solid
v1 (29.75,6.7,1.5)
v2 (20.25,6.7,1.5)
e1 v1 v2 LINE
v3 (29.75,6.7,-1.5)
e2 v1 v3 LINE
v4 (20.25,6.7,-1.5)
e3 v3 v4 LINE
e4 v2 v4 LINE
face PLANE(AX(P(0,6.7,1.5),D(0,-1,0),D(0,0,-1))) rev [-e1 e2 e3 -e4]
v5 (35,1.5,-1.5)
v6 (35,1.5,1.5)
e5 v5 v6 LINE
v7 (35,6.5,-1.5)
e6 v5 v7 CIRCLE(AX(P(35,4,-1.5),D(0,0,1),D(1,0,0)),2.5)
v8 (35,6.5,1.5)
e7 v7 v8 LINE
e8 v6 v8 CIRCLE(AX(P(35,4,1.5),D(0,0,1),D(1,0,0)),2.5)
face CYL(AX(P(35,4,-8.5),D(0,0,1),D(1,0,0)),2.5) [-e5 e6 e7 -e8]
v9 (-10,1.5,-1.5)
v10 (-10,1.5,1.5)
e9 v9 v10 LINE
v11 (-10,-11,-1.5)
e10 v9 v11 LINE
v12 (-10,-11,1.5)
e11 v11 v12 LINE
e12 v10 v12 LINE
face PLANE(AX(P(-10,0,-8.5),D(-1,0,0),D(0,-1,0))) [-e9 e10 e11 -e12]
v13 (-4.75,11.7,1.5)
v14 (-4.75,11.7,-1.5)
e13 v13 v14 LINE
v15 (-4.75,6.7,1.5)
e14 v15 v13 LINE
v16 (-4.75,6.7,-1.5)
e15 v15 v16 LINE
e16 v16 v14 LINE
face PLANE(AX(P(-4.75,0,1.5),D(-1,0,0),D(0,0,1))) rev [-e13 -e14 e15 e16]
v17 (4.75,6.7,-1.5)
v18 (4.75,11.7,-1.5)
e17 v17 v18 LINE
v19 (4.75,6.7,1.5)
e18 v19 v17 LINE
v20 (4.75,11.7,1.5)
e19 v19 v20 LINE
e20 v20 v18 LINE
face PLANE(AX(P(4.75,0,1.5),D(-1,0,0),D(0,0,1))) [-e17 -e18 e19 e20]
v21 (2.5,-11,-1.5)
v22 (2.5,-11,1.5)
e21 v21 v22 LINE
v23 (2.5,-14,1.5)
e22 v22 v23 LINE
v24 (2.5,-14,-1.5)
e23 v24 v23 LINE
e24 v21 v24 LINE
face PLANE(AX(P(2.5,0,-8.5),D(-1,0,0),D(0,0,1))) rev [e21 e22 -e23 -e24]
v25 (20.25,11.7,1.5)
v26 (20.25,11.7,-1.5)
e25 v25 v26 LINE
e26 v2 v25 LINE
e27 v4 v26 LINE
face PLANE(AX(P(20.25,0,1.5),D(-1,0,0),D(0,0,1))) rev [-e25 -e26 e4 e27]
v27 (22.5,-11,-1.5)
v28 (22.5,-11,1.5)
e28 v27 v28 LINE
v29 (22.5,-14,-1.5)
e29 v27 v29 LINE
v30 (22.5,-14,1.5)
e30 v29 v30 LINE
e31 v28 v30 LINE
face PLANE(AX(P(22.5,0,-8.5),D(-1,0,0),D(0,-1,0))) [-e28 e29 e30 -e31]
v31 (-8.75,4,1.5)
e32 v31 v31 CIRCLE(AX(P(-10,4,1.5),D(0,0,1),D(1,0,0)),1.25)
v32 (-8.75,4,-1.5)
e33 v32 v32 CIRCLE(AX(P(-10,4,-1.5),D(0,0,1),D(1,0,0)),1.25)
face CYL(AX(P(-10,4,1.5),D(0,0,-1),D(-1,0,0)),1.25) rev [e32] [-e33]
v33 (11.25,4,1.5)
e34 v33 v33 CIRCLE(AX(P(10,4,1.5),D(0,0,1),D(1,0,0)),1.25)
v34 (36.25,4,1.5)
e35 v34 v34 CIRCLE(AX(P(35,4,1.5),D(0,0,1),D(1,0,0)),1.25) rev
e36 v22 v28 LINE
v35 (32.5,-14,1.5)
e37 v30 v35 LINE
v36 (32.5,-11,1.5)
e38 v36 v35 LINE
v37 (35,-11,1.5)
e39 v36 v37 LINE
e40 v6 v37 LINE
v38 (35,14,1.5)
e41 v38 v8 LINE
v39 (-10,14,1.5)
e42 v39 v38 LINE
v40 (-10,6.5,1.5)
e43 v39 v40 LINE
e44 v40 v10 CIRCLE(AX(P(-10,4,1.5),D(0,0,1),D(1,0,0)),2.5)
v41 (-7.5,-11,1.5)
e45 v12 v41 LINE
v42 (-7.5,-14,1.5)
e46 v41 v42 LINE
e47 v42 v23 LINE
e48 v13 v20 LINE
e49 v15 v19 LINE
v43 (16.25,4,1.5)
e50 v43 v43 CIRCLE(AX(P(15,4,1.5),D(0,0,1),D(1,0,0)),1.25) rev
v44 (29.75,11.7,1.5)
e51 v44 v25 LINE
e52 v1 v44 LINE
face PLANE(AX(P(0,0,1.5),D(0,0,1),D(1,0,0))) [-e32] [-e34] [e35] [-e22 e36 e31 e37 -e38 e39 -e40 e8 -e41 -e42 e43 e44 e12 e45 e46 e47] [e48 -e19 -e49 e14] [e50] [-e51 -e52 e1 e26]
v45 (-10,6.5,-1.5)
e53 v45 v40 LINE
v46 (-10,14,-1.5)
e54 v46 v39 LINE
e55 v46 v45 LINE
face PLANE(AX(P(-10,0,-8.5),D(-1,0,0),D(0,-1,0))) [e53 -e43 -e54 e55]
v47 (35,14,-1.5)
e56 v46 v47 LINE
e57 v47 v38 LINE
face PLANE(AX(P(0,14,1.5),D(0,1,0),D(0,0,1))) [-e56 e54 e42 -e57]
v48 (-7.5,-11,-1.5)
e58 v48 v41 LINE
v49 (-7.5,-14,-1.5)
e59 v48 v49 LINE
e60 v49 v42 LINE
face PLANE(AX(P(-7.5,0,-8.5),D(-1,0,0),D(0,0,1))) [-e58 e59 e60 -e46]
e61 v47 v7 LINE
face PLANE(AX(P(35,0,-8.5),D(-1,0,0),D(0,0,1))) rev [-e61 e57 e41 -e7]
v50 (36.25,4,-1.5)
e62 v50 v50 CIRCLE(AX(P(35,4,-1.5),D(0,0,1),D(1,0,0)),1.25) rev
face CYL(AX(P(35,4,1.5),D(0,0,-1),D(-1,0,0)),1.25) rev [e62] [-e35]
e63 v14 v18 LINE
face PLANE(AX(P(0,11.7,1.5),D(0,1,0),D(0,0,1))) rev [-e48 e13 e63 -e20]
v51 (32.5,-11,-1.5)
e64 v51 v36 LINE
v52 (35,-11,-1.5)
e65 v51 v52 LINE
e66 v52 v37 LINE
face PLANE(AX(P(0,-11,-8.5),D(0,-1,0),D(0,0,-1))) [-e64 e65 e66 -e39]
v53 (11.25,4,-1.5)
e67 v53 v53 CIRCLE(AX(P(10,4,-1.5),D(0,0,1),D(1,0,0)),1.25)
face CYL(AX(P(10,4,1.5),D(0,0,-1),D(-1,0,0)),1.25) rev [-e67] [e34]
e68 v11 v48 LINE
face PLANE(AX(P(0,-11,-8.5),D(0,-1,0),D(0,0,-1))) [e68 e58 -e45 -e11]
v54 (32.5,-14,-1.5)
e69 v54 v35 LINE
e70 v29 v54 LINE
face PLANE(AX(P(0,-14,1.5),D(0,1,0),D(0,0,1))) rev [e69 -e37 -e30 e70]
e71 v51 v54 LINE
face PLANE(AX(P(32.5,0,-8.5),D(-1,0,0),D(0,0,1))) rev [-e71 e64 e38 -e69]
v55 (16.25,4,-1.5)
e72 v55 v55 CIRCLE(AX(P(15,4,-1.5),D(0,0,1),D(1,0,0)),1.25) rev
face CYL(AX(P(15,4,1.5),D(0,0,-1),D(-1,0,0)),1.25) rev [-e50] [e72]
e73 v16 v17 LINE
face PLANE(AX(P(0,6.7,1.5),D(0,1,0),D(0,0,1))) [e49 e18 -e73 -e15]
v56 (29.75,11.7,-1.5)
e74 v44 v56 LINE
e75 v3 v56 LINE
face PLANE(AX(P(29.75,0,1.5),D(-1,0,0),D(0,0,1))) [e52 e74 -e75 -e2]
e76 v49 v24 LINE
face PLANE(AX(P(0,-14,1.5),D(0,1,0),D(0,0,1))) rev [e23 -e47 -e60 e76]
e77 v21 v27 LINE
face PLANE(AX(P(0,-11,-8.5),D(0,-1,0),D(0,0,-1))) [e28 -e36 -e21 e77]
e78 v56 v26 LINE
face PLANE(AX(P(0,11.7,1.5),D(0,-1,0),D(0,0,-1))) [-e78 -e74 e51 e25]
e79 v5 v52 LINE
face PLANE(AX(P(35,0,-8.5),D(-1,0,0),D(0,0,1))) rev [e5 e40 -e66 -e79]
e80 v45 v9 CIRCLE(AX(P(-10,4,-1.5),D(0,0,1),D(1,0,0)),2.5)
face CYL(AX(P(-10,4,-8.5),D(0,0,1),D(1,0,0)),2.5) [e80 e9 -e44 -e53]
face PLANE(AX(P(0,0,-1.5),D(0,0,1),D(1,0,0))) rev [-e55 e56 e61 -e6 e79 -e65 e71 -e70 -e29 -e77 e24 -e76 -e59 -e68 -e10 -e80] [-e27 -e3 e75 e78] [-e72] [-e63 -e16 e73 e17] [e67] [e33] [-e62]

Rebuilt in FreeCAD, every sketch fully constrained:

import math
import FreeCAD as App
import Part
import Sketcher

doc = App.newDocument("Part")
body = doc.addObject("PartDesign::Body", "Body")

# Sketch on XY plane
sketch1 = doc.addObject("Sketcher::SketchObject", "Sketch")
body.addObject(sketch1)
sketch1.AttachmentSupport = (doc.XY_Plane, [""])
sketch1.MapMode = "FlatFace"
sketch1.addGeometry([
    Part.LineSegment(App.Vector(-12.5, 14, 0), App.Vector(-12.5, -14, 0)),  # 0
    Part.LineSegment(App.Vector(-12.5, -14, 0), App.Vector(37.5, -14, 0)),  # 1
    Part.LineSegment(App.Vector(37.5, -14, 0), App.Vector(37.5, 14, 0)),  # 2
    Part.LineSegment(App.Vector(37.5, 14, 0), App.Vector(-12.5, 14, 0)),  # 3
    Part.Circle(App.Vector(-10, 4, 0), App.Vector(0, 0, 1), 1.25),  # 4
    Part.Circle(App.Vector(10, 4, 0), App.Vector(0, 0, 1), 1.25),  # 5
    Part.LineSegment(App.Vector(4.75, 6.7, 0), App.Vector(-4.75, 6.7, 0)),  # 6
    Part.LineSegment(App.Vector(-4.75, 6.7, 0), App.Vector(-4.75, 11.7, 0)),  # 7
    Part.LineSegment(App.Vector(-4.75, 11.7, 0), App.Vector(4.75, 11.7, 0)),  # 8
    Part.LineSegment(App.Vector(4.75, 11.7, 0), App.Vector(4.75, 6.7, 0)),  # 9
    Part.LineSegment(App.Vector(20.25, 6.7, 0), App.Vector(20.25, 11.7, 0)),  # 10
    Part.LineSegment(App.Vector(20.25, 11.7, 0), App.Vector(29.75, 11.7, 0)),  # 11
    Part.LineSegment(App.Vector(29.75, 11.7, 0), App.Vector(29.75, 6.7, 0)),  # 12
    Part.LineSegment(App.Vector(29.75, 6.7, 0), App.Vector(20.25, 6.7, 0)),  # 13
    Part.Circle(App.Vector(15, 4, 0), App.Vector(0, 0, 1), 1.25),  # 14
    Part.Circle(App.Vector(35, 4, 0), App.Vector(0, 0, 1), 1.25),  # 15
], False)
sketch1.addConstraint([
    Sketcher.Constraint("Coincident", 0, 2, 1, 1),
    Sketcher.Constraint("Coincident", 1, 2, 2, 1),
    Sketcher.Constraint("Coincident", 2, 2, 3, 1),
    Sketcher.Constraint("Coincident", 3, 2, 0, 1),
    Sketcher.Constraint("Coincident", 6, 2, 7, 1),
    Sketcher.Constraint("Coincident", 7, 2, 8, 1),
    Sketcher.Constraint("Coincident", 8, 2, 9, 1),
    Sketcher.Constraint("Coincident", 9, 2, 6, 1),
    Sketcher.Constraint("Coincident", 10, 2, 11, 1),
    Sketcher.Constraint("Coincident", 11, 2, 12, 1),
    Sketcher.Constraint("Coincident", 12, 2, 13, 1),
    Sketcher.Constraint("Coincident", 13, 2, 10, 1),
    Sketcher.Constraint("Vertical", 0),
    Sketcher.Constraint("Horizontal", 1),
    Sketcher.Constraint("Vertical", 2),
    Sketcher.Constraint("Horizontal", 3),
    Sketcher.Constraint("Horizontal", 6),
    Sketcher.Constraint("Vertical", 7),
    Sketcher.Constraint("Horizontal", 8),
    Sketcher.Constraint("Vertical", 9),
    Sketcher.Constraint("Vertical", 10),
    Sketcher.Constraint("Horizontal", 11),
    Sketcher.Constraint("Vertical", 12),
    Sketcher.Constraint("Horizontal", 13),
    Sketcher.Constraint("Equal", 4, 5),
    Sketcher.Constraint("Equal", 5, 14),
    Sketcher.Constraint("Equal", 14, 15),
    Sketcher.Constraint("Symmetric", 4, 3, 5, 3, -2),
    Sketcher.Constraint("Horizontal", 5, 3, 14, 3),
    Sketcher.Constraint("Horizontal", 14, 3, 15, 3),
    Sketcher.Constraint("Horizontal", 8, 2, 10, 2),
    Sketcher.Constraint("Horizontal", 9, 2, 12, 2),
    Sketcher.Constraint("Equal", 8, 11),
    Sketcher.Constraint("Diameter", 4, 2.5),
    Sketcher.Constraint("DistanceX", 1, 1, 1, 2, 50.0),
    Sketcher.Constraint("DistanceY", 0, 2, 0, 1, 28.0),
    Sketcher.Constraint("DistanceY", 7, 1, 7, 2, 5.0),
    Sketcher.Constraint("DistanceX", 6, 2, 6, 1, 9.5),
    Sketcher.Constraint("DistanceX", 4, 3, -1, 1, 10.0),
    Sketcher.Constraint("DistanceY", -1, 1, 4, 3, 4.0),
    Sketcher.Constraint("DistanceX", -1, 1, 14, 3, 15.0),
    Sketcher.Constraint("DistanceX", -1, 1, 15, 3, 35.0),
    Sketcher.Constraint("DistanceY", 0, 2, -1, 1, 14.0),
    Sketcher.Constraint("DistanceX", 0, 2, -1, 1, 12.5),
    Sketcher.Constraint("DistanceY", -1, 1, 6, 2, 6.7),
    Sketcher.Constraint("DistanceX", 8, 2, 10, 2, 15.5),
    Sketcher.Constraint("DistanceX", 6, 2, -1, 1, 4.75),
])
pad1 = doc.addObject("PartDesign::Pad", "Pad")
body.addObject(pad1)
pad1.Profile = sketch1
pad1.Length = 3
pad1.Midplane = True

# Sketch on XY plane
sketch2 = doc.addObject("Sketcher::SketchObject", "Sketch001")
body.addObject(sketch2)
sketch2.AttachmentSupport = (doc.XY_Plane, [""])
sketch2.MapMode = "FlatFace"
sketch2.AttachmentOffset = App.Placement(App.Vector(0, 0, 1.5), App.Rotation())
sketch2.addGeometry([
    Part.LineSegment(App.Vector(-10, 6.5, 0), App.Vector(-10, 14, 0)),  # 0
    Part.LineSegment(App.Vector(-10, 14, 0), App.Vector(-12.5, 14, 0)),  # 1
    Part.LineSegment(App.Vector(-12.5, 14, 0), App.Vector(-12.5, 4, 0)),  # 2
    Part.ArcOfCircle(Part.Circle(App.Vector(-10, 4, 0), App.Vector(0, 0, 1), 2.5), math.radians(90), math.radians(180)),  # 3
    Part.LineSegment(App.Vector(-10, -11, 0), App.Vector(-10, 1.5, 0)),  # 4
    Part.ArcOfCircle(Part.Circle(App.Vector(-10, 4, 0), App.Vector(0, 0, 1), 2.5), math.radians(180), math.radians(270)),  # 5
    Part.LineSegment(App.Vector(-12.5, 4, 0), App.Vector(-12.5, -14, 0)),  # 6
    Part.LineSegment(App.Vector(-12.5, -14, 0), App.Vector(-7.5, -14, 0)),  # 7
    Part.LineSegment(App.Vector(-7.5, -14, 0), App.Vector(-7.5, -11, 0)),  # 8
    Part.LineSegment(App.Vector(-7.5, -11, 0), App.Vector(-10, -11, 0)),  # 9
    Part.LineSegment(App.Vector(2.5, -11, 0), App.Vector(2.5, -14, 0)),  # 10
    Part.LineSegment(App.Vector(2.5, -14, 0), App.Vector(22.5, -14, 0)),  # 11
    Part.LineSegment(App.Vector(22.5, -14, 0), App.Vector(22.5, -11, 0)),  # 12
    Part.LineSegment(App.Vector(22.5, -11, 0), App.Vector(2.5, -11, 0)),  # 13
    Part.LineSegment(App.Vector(37.5, -14, 0), App.Vector(37.5, 4, 0)),  # 14
    Part.ArcOfCircle(Part.Circle(App.Vector(35, 4, 0), App.Vector(0, 0, 1), 2.5), math.radians(-90), math.radians(0)),  # 15
    Part.LineSegment(App.Vector(35, 1.5, 0), App.Vector(35, -11, 0)),  # 16
    Part.LineSegment(App.Vector(35, -11, 0), App.Vector(32.5, -11, 0)),  # 17
    Part.LineSegment(App.Vector(32.5, -11, 0), App.Vector(32.5, -14, 0)),  # 18
    Part.LineSegment(App.Vector(32.5, -14, 0), App.Vector(37.5, -14, 0)),  # 19
    Part.LineSegment(App.Vector(37.5, 14, 0), App.Vector(35, 14, 0)),  # 20
    Part.LineSegment(App.Vector(35, 14, 0), App.Vector(35, 6.5, 0)),  # 21
    Part.ArcOfCircle(Part.Circle(App.Vector(35, 4, 0), App.Vector(0, 0, 1), 2.5), math.radians(0), math.radians(90)),  # 22
    Part.LineSegment(App.Vector(37.5, 4, 0), App.Vector(37.5, 14, 0)),  # 23
], False)
sketch2.addConstraint([
    Sketcher.Constraint("Coincident", 0, 2, 1, 1),
    Sketcher.Constraint("Coincident", 1, 2, 2, 1),
    Sketcher.Constraint("Tangent", 2, 2, 3, 2),
    Sketcher.Constraint("Coincident", 3, 1, 0, 1),
    Sketcher.Constraint("Coincident", 4, 2, 5, 2),
    Sketcher.Constraint("Tangent", 5, 1, 6, 1),
    Sketcher.Constraint("Coincident", 6, 2, 7, 1),
    Sketcher.Constraint("Coincident", 7, 2, 8, 1),
    Sketcher.Constraint("Coincident", 8, 2, 9, 1),
    Sketcher.Constraint("Coincident", 9, 2, 4, 1),
    Sketcher.Constraint("Coincident", 10, 2, 11, 1),
    Sketcher.Constraint("Coincident", 11, 2, 12, 1),
    Sketcher.Constraint("Coincident", 12, 2, 13, 1),
    Sketcher.Constraint("Coincident", 13, 2, 10, 1),
    Sketcher.Constraint("Tangent", 14, 2, 15, 2),
    Sketcher.Constraint("Coincident", 15, 1, 16, 1),
    Sketcher.Constraint("Coincident", 16, 2, 17, 1),
    Sketcher.Constraint("Coincident", 17, 2, 18, 1),
    Sketcher.Constraint("Coincident", 18, 2, 19, 1),
    Sketcher.Constraint("Coincident", 19, 2, 14, 1),
    Sketcher.Constraint("Coincident", 20, 2, 21, 1),
    Sketcher.Constraint("Coincident", 21, 2, 22, 2),
    Sketcher.Constraint("Tangent", 22, 1, 23, 1),
    Sketcher.Constraint("Coincident", 23, 2, 20, 1),
    Sketcher.Constraint("Vertical", 0),
    Sketcher.Constraint("Horizontal", 1),
    Sketcher.Constraint("Vertical", 2),
    Sketcher.Constraint("Vertical", 4),
    Sketcher.Constraint("Vertical", 6),
    Sketcher.Constraint("Horizontal", 7),
    Sketcher.Constraint("Vertical", 8),
    Sketcher.Constraint("Horizontal", 9),
    Sketcher.Constraint("Vertical", 10),
    Sketcher.Constraint("Horizontal", 11),
    Sketcher.Constraint("Vertical", 12),
    Sketcher.Constraint("Horizontal", 13),
    Sketcher.Constraint("Vertical", 14),
    Sketcher.Constraint("Vertical", 16),
    Sketcher.Constraint("Horizontal", 17),
    Sketcher.Constraint("Vertical", 18),
    Sketcher.Constraint("Horizontal", 19),
    Sketcher.Constraint("Horizontal", 20),
    Sketcher.Constraint("Vertical", 21),
    Sketcher.Constraint("Vertical", 23),
    Sketcher.Constraint("Coincident", 5, 3, 3, 3),
    Sketcher.Constraint("Coincident", 22, 3, 15, 3),
    Sketcher.Constraint("Equal", 3, 5),
    Sketcher.Constraint("Equal", 5, 15),
    Sketcher.Constraint("Equal", 15, 22),
    Sketcher.Constraint("Horizontal", 5, 3, 15, 3),
    Sketcher.Constraint("Horizontal", 7, 2, 10, 2),
    Sketcher.Constraint("Horizontal", 9, 2, 12, 2),
    Sketcher.Constraint("Horizontal", 13, 2, 16, 2),
    Sketcher.Constraint("Horizontal", 11, 2, 18, 2),
    Sketcher.Constraint("Horizontal", 1, 2, 20, 2),
    Sketcher.Constraint("Vertical", 5, 3, 0, 2),
    Sketcher.Constraint("Vertical", 3, 1, 4, 2),
    Sketcher.Constraint("Vertical", 22, 3, 15, 1),
    Sketcher.Constraint("Vertical", 16, 2, 20, 2),
    Sketcher.Constraint("Equal", 1, 9),
    Sketcher.Constraint("Equal", 9, 17),
    Sketcher.Constraint("Radius", 3, 2.5),
    Sketcher.Constraint("DistanceX", 11, 1, 11, 2, 20.0),
    Sketcher.Constraint("DistanceY", 2, 2, 2, 1, 10.0),
    Sketcher.Constraint("DistanceY", 6, 2, 6, 1, 18.0),
    Sketcher.Constraint("DistanceY", 8, 1, 8, 2, 3.0),
    Sketcher.Constraint("DistanceX", 3, 3, -1, 1, 10.0),
    Sketcher.Constraint("DistanceY", -1, 1, 3, 3, 4.0),
    Sketcher.Constraint("DistanceX", -1, 1, 15, 3, 35.0),
    Sketcher.Constraint("DistanceX", 7, 2, 10, 2, 10.0),
])
pocket1 = doc.addObject("PartDesign::Pocket", "Pocket")
body.addObject(pocket1)
pocket1.Profile = sketch2
pocket1.Length = 10

doc.recompute()
